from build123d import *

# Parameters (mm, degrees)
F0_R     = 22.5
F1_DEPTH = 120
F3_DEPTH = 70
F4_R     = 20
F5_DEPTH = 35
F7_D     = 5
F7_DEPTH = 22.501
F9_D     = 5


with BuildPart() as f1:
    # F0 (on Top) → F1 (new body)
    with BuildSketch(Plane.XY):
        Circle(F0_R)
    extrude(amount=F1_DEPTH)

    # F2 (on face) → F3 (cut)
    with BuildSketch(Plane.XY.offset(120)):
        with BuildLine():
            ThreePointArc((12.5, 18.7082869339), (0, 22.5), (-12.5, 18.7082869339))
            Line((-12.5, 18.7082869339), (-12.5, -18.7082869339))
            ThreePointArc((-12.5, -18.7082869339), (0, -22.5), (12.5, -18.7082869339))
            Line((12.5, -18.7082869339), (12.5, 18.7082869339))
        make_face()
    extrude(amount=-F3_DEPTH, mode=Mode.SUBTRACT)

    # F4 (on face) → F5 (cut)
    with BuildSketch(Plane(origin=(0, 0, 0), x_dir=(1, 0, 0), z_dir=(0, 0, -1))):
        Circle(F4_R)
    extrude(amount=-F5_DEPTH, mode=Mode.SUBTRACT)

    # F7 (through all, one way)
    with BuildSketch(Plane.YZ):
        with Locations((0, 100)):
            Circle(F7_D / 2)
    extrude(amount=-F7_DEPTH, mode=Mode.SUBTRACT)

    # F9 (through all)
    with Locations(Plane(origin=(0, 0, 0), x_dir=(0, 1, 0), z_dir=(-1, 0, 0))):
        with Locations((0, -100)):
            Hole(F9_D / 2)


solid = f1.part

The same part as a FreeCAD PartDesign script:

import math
import FreeCAD as App
import Part
import Sketcher

V = App.Vector

doc = App.newDocument("Part")
body = doc.addObject("PartDesign::Body", "Body")

# Sketch on XY plane
sketch1 = body.newObject("Sketcher::SketchObject", "Sketch")
sketch1.AttachmentSupport = (doc.getObject("XY_Plane"), [""])
sketch1.MapMode = "FlatFace"
sketch1.addGeometry(Part.Circle(V(0, 0, 0), V(0, 0, 1), 22), False)
sketch1.addConstraint(Sketcher.Constraint("Coincident", 0, 3, -1, 1))
sketch1.addConstraint(Sketcher.Constraint("Diameter", 0, 45.0))
pad1 = body.newObject("PartDesign::Pad", "Pad")
pad1.Profile = sketch1
pad1.Length = 120

# Sketch on XY plane
sketch2 = body.newObject("Sketcher::SketchObject", "Sketch001")
sketch2.AttachmentSupport = (doc.getObject("XY_Plane"), [""])
sketch2.MapMode = "FlatFace"
sketch2.AttachmentOffset = App.Placement(V(0, 0, 120), App.Rotation())
sketch2.addGeometry(Part.ArcOfCircle(Part.Circle(V(0, 0, 0), V(0, 0, 1), 22), math.radians(56), math.radians(124)), False)
sketch2.addGeometry(Part.LineSegment(V(-12, 19, 0), V(-12, -19, 0)), False)
sketch2.addGeometry(Part.ArcOfCircle(Part.Circle(V(0, 0, 0), V(0, 0, 1), 22), math.radians(-124), math.radians(-56)), False)
sketch2.addGeometry(Part.LineSegment(V(12, -19, 0), V(12, 19, 0)), False)
sketch2.addConstraint(Sketcher.Constraint("Coincident", 0, 2, 1, 1))
sketch2.addConstraint(Sketcher.Constraint("Coincident", 1, 2, 2, 1))
sketch2.addConstraint(Sketcher.Constraint("Coincident", 2, 2, 3, 1))
sketch2.addConstraint(Sketcher.Constraint("Coincident", 3, 2, 0, 1))
sketch2.addConstraint(Sketcher.Constraint("Vertical", 1))
sketch2.addConstraint(Sketcher.Constraint("Vertical", 3))
sketch2.addConstraint(Sketcher.Constraint("Coincident", 0, 3, -1, 1))
sketch2.addConstraint(Sketcher.Constraint("Coincident", 2, 3, -1, 1))
sketch2.addConstraint(Sketcher.Constraint("Equal", 0, 2))
sketch2.addConstraint(Sketcher.Constraint("Horizontal", 1, 2, 2, 2))
sketch2.addConstraint(Sketcher.Constraint("Radius", 0, 22.5))
sketch2.addConstraint(Sketcher.Constraint("DistanceX", 1, 2, 2, 2, 25.0))
pocket1 = body.newObject("PartDesign::Pocket", "Pocket")
pocket1.Profile = sketch2
pocket1.Length = 70

# Sketch on XY plane
sketch3 = body.newObject("Sketcher::SketchObject", "Sketch002")
sketch3.AttachmentSupport = (doc.getObject("XY_Plane"), [""])
sketch3.MapMode = "FlatFace"
sketch3.addGeometry(Part.Circle(V(0, 0, 0), V(0, 0, 1), 20), False)
sketch3.addConstraint(Sketcher.Constraint("Coincident", 0, 3, -1, 1))
sketch3.addConstraint(Sketcher.Constraint("Diameter", 0, 40.0))
pocket2 = body.newObject("PartDesign::Pocket", "Pocket001")
pocket2.Profile = sketch3
pocket2.Length = 35
pocket2.Reversed = True

# Sketch on YZ plane
sketch4 = body.newObject("Sketcher::SketchObject", "Sketch003")
sketch4.AttachmentSupport = (doc.getObject("YZ_Plane"), [""])
sketch4.MapMode = "FlatFace"
sketch4.addGeometry(Part.Circle(V(0, 100, 0), V(0, 0, 1), 2.5), False)
sketch4.addConstraint(Sketcher.Constraint("PointOnObject", 0, 3, -2))
sketch4.addConstraint(Sketcher.Constraint("Diameter", 0, 5.0))
sketch4.addConstraint(Sketcher.Constraint("DistanceY", -1, 1, 0, 3, 100.0))
pocket3 = body.newObject("PartDesign::Pocket", "Pocket002")
pocket3.Profile = sketch4
pocket3.Type = "ThroughAll"

# Sketch on YZ plane
sketch5 = body.newObject("Sketcher::SketchObject", "Sketch004")
sketch5.AttachmentSupport = (doc.getObject("YZ_Plane"), [""])
sketch5.MapMode = "FlatFace"
sketch5.addGeometry(Part.Circle(V(0, 100, 0), V(0, 0, 1), 2.5), False)
sketch5.addConstraint(Sketcher.Constraint("PointOnObject", 0, 3, -2))
sketch5.addConstraint(Sketcher.Constraint("Diameter", 0, 5.0))
sketch5.addConstraint(Sketcher.Constraint("DistanceY", -1, 1, 0, 3, 100.0))
doc.recompute()
hole = body.newObject("PartDesign::Hole", "Hole")
hole.Profile = sketch5
hole.ThreadType = "None"
hole.Diameter = 5
hole.DepthType = "ThroughAll"
hole.Reversed = True

doc.recompute()
